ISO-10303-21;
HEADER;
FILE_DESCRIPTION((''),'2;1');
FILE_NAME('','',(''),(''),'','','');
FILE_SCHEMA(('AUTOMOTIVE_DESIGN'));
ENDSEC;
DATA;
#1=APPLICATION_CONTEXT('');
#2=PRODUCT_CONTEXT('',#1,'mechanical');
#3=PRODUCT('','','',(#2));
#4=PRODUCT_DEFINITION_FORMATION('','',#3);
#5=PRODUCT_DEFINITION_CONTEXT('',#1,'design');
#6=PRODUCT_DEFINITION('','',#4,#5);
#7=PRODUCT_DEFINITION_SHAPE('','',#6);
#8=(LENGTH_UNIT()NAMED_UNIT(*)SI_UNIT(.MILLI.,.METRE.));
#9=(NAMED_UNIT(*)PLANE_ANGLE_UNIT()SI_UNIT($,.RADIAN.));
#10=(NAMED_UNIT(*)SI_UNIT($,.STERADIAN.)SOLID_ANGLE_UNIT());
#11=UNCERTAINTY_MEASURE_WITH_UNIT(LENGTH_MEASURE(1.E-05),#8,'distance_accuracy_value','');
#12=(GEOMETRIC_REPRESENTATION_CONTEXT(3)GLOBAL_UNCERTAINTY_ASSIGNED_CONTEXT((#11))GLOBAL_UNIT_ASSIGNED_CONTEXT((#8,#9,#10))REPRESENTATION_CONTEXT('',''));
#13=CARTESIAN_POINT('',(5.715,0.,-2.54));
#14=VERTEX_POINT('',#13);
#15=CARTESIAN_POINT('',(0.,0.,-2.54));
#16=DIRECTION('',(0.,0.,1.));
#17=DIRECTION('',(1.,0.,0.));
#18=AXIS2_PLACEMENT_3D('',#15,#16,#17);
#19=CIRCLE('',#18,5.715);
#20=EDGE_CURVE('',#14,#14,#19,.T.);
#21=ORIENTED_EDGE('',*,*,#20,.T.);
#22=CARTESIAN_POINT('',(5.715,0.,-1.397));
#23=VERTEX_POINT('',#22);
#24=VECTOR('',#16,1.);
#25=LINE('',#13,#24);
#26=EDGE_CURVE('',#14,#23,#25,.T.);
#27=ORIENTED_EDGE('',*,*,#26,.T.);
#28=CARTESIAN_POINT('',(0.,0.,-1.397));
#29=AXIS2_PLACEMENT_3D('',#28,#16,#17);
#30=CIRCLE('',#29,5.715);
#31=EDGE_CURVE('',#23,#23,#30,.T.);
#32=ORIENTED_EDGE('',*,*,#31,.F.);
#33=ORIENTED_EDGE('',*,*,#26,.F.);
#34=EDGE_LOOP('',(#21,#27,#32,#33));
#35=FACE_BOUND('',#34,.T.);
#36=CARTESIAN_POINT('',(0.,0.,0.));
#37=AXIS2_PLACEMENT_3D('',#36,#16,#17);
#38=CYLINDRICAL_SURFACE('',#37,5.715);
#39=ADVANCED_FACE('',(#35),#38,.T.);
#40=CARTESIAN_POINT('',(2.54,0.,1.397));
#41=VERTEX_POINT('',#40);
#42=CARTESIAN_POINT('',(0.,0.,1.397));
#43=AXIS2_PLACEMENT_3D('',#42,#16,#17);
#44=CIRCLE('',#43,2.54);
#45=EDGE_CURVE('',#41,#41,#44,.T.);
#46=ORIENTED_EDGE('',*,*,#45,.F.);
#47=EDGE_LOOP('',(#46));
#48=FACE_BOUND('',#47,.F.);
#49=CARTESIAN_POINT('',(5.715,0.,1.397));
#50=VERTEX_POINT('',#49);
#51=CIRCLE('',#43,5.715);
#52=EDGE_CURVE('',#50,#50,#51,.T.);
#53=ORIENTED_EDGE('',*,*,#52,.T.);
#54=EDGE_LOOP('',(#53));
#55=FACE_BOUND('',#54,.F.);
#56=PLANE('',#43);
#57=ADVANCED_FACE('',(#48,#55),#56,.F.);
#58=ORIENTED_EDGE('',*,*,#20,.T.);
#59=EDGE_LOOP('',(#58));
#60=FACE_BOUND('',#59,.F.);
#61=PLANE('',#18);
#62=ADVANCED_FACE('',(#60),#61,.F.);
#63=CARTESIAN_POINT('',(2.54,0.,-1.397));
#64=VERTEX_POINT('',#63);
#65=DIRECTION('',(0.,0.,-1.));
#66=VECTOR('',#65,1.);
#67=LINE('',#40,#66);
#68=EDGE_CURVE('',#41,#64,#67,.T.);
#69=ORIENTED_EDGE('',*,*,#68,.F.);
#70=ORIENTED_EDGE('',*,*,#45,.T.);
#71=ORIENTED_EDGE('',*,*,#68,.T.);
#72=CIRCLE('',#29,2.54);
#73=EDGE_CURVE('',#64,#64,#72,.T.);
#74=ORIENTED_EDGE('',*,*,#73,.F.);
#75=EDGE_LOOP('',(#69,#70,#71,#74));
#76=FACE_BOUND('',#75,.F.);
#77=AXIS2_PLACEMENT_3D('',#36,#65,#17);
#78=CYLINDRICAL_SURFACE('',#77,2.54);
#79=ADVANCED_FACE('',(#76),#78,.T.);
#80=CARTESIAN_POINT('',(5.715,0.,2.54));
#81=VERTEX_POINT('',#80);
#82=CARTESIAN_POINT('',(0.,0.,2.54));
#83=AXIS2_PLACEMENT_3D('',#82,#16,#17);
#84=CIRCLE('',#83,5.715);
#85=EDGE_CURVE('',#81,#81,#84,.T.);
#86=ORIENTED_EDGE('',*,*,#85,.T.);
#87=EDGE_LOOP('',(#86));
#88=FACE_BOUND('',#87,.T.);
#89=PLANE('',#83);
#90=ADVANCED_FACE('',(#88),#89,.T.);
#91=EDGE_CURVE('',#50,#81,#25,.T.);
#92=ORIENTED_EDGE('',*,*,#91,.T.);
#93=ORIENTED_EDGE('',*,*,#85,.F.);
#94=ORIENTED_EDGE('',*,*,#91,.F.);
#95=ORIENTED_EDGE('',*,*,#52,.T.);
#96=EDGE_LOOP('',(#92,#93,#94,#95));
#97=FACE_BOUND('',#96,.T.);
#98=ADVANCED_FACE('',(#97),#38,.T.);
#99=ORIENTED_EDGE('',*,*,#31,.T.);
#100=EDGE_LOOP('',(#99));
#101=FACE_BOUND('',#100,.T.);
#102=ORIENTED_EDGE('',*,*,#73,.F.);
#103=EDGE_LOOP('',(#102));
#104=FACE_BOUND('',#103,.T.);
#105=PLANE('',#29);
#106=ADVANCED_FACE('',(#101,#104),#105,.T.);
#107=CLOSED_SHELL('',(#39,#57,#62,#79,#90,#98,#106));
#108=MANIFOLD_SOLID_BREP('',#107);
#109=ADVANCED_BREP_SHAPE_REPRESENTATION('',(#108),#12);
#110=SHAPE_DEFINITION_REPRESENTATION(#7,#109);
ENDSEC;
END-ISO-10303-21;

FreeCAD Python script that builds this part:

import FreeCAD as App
import Part
import Sketcher
from FreeCAD import Vector
Q = App.Units.Quantity

doc = App.newDocument("Part")
body = doc.addObject("PartDesign::Body", "Body")

# Sketch on XY plane
sketch1 = doc.addObject("Sketcher::SketchObject", "Sketch")
body.addObject(sketch1)
sketch1.AttachmentSupport = (doc.XY_Plane, [""])
sketch1.MapMode = "FlatFace"
sketch1.addGeometry(Part.Circle(Vector(0, 0, 0), Vector(0, 0, 1), 6), False)
sketch1.addConstraint(Sketcher.Constraint("Coincident", 0, 3, -1, 1))
sketch1.addConstraint(Sketcher.Constraint("Diameter", 0, Q("0.45 in")))
pad1 = doc.addObject("PartDesign::Pad", "Pad")
body.addObject(pad1)
pad1.Profile = sketch1
pad1.Length = Q("0.2 in")
pad1.Midplane = True

# Sketch on XY plane
sketch2 = doc.addObject("Sketcher::SketchObject", "Sketch001")
body.addObject(sketch2)
sketch2.AttachmentSupport = (doc.XY_Plane, [""])
sketch2.MapMode = "FlatFace"
sketch2.addGeometry(Part.Circle(Vector(0, 0, 0), Vector(0, 0, 1), 5.7), False)
sketch2.addGeometry(Part.Circle(Vector(0, 0, 0), Vector(0, 0, 1), 2.5), False)
sketch2.addConstraint(Sketcher.Constraint("Coincident", 0, 3, -1, 1))
sketch2.addConstraint(Sketcher.Constraint("Coincident", 1, 3, -1, 1))
sketch2.addConstraint(Sketcher.Constraint("Diameter", 1, Q("0.2 in")))
sketch2.addConstraint(Sketcher.Constraint("Diameter", 0, Q("0.45 in")))
pocket1 = doc.addObject("PartDesign::Pocket", "Pocket")
body.addObject(pocket1)
pocket1.Profile = sketch2
pocket1.Length = Q("0.11 in")
pocket1.Midplane = True

doc.recompute()
